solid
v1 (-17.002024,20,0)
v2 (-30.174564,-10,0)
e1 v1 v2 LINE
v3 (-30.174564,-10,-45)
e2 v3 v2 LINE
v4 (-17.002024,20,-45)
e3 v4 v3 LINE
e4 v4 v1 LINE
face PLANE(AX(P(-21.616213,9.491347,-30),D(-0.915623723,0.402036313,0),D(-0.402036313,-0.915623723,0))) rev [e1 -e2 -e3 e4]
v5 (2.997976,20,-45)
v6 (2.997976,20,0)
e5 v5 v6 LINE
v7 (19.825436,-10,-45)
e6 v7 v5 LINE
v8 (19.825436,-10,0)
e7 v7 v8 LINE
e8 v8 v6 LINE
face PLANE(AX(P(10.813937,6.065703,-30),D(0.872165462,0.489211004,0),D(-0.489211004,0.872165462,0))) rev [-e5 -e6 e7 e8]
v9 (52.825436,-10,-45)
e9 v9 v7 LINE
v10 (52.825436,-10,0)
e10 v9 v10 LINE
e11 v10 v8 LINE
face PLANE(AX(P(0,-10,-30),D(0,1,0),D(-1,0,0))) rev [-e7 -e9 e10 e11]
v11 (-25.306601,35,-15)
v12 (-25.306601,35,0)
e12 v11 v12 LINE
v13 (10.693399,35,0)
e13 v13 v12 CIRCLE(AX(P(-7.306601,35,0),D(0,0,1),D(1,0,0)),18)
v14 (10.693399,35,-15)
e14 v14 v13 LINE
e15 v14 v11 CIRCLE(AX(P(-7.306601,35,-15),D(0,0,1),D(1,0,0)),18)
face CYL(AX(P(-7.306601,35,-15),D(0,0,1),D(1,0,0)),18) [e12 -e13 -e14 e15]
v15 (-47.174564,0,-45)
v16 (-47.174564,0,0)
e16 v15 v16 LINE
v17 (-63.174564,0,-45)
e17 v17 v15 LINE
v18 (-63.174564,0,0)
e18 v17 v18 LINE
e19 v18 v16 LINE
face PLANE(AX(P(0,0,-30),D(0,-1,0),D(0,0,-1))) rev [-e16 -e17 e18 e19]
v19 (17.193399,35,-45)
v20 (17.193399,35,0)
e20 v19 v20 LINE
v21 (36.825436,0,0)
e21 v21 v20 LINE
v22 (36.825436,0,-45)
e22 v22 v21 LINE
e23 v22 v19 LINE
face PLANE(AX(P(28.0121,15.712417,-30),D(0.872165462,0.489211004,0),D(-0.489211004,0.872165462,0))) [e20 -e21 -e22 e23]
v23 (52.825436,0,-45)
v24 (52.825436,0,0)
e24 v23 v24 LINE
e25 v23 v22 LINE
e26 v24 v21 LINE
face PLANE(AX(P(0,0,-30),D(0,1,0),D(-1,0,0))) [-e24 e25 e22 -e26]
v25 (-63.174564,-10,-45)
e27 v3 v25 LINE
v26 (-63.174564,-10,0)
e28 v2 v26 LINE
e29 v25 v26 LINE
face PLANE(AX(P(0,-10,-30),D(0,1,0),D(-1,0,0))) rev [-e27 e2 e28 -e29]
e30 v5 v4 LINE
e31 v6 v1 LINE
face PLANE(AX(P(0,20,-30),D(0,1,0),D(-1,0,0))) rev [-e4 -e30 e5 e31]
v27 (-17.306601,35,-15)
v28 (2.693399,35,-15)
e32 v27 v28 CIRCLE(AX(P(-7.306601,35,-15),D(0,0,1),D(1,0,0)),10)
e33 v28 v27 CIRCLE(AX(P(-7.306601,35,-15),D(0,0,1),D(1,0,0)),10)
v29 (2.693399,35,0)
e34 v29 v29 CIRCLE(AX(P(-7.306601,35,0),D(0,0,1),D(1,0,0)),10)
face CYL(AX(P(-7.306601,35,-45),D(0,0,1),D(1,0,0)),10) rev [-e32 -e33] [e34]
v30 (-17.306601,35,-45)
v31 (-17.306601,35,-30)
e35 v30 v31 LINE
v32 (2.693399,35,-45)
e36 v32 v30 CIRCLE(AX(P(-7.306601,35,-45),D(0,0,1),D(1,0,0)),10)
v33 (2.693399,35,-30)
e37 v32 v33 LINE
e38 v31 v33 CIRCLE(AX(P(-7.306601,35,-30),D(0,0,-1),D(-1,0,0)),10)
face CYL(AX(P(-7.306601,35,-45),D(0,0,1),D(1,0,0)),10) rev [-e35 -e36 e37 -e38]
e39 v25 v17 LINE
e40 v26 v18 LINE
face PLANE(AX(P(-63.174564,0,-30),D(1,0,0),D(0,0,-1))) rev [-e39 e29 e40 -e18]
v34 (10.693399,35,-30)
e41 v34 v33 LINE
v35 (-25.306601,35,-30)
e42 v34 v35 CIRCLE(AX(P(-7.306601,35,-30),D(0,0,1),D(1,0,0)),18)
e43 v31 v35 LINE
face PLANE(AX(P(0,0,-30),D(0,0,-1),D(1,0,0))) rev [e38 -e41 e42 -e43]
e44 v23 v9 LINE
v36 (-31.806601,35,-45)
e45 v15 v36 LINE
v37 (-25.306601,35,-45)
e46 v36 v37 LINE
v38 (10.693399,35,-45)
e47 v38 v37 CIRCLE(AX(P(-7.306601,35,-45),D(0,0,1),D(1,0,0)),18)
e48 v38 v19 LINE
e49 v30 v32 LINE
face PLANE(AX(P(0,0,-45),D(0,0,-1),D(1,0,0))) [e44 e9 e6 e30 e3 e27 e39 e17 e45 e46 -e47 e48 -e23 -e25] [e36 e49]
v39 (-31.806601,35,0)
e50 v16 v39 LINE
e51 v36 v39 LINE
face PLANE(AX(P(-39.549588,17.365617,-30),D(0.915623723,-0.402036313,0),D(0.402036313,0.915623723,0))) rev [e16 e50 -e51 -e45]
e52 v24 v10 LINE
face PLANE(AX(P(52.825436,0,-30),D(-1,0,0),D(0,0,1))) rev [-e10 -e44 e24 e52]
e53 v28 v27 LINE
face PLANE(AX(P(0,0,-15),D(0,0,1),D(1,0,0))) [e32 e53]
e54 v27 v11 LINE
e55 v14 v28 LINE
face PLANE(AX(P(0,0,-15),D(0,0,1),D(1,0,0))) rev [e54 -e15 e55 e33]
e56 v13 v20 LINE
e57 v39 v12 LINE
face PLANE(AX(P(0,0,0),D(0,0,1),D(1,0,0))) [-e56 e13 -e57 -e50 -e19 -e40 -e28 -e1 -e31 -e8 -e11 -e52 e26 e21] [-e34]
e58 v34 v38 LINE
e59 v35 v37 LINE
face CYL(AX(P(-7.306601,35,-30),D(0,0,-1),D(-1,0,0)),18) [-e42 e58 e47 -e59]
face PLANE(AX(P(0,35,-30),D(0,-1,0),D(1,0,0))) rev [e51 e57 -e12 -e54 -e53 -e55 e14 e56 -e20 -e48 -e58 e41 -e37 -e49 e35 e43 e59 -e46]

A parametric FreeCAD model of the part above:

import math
import FreeCAD as App
import Part
import Sketcher
from FreeCAD import Vector
Q = App.Units.Quantity


def add_polygon(sketch, points):
    """Adds a closed chain of lines whose ends are joined by coincident constraints."""
    first, n = sketch.GeometryCount, len(points)
    for a, b in zip(points, points[1:] + points[:1]):
        sketch.addGeometry(Part.LineSegment(App.Vector(*a, 0), App.Vector(*b, 0)), False)
    for i in range(n):
        sketch.addConstraint(Sketcher.Constraint("Coincident", first + i, 2, first + (i + 1) % n, 1))

doc = App.newDocument("Part")
body = doc.addObject("PartDesign::Body", "Body")

# Sketch on XY plane
sketch1 = doc.addObject("Sketcher::SketchObject", "Sketch")
body.addObject(sketch1)
sketch1.AttachmentSupport = (doc.XY_Plane, [""])
sketch1.MapMode = "FlatFace"
add_polygon(sketch1, [(53, -10), (53, 0), (37, 0), (17, 35), (-32, 35), (-47, 0), (-63, 0), (-63, -10), (-30, -10), (-17, 20), (3, 20), (20, -10)])  # lines 0-11
sketch1.addConstraint([
    Sketcher.Constraint("Vertical", 0),
    Sketcher.Constraint("Horizontal", 1),
    Sketcher.Constraint("Horizontal", 3),
    Sketcher.Constraint("Horizontal", 5),
    Sketcher.Constraint("Vertical", 6),
    Sketcher.Constraint("Horizontal", 7),
    Sketcher.Constraint("Horizontal", 9),
    Sketcher.Constraint("Horizontal", 11),
    Sketcher.Constraint("PointOnObject", 0, 2, -1),
    Sketcher.Constraint("PointOnObject", 4, 2, -1),
    Sketcher.Constraint("Parallel", 4, 8),
    Sketcher.Constraint("Parallel", 2, 10),
    Sketcher.Constraint("Horizontal", 7, 2, 10, 2),
    Sketcher.Constraint("Equal", 1, 5),
    Sketcher.Constraint("Equal", 7, 11),
    Sketcher.Constraint("DistanceX", 1, 2, 1, 1, Q("16 mm")),
    Sketcher.Constraint("DistanceX", 3, 2, 3, 1, Q("49 mm")),
    Sketcher.Constraint("DistanceX", 7, 1, 7, 2, Q("33 mm")),
    Sketcher.Constraint("DistanceX", 9, 1, 9, 2, Q("20 mm")),
    Sketcher.Constraint("DistanceY", 0, 1, 0, 2, Q("10 mm")),
    Sketcher.Constraint("DistanceY", -1, 1, 2, 2, Q("35 mm")),
    Sketcher.Constraint("DistanceY", -1, 1, 8, 2, Q("20 mm")),
    Sketcher.Constraint("Distance", 2, Q("40.13 mm")),
    Sketcher.Constraint("DistanceX", -1, 1, 2, 2, Q("17.193399 mm")),
])
pad1 = doc.addObject("PartDesign::Pad", "Pad")
body.addObject(pad1)
pad1.Profile = sketch1
pad1.Length = 30
pad1.Reversed = True

# Sketch on XY plane
sketch2 = doc.addObject("Sketcher::SketchObject", "Sketch001")
body.addObject(sketch2)
sketch2.AttachmentSupport = (doc.XY_Plane, [""])
sketch2.MapMode = "FlatFace"
sketch2.addGeometry([
    Part.ArcOfCircle(Part.Circle(Vector(-7, 35, 0), Vector(0, 0, 1), 18), math.radians(0), math.radians(180)),
    Part.LineSegment(Vector(-25, 35, 0), Vector(11, 35, 0)),
], False)
sketch2.addConstraint([
    Sketcher.Constraint("Coincident", 0, 1, 1, 2),
    Sketcher.Constraint("Coincident", 1, 1, 0, 2),
    Sketcher.Constraint("Horizontal", 1),
    Sketcher.Constraint("Radius", 0, Q("18 mm")),
    Sketcher.Constraint("DistanceY", -1, 1, 0, 3, Q("35 mm")),
    Sketcher.Constraint("DistanceY", -1, 1, 0, 1, Q("35 mm")),
    Sketcher.Constraint("DistanceX", 0, 3, -1, 1, Q("7.306601 mm")),
])
pad2 = doc.addObject("PartDesign::Pad", "Pad001")
body.addObject(pad2)
pad2.Profile = sketch2
pad2.Length = 15
pad2.Reversed = True
doc.recompute()

datumplane = doc.addObject("PartDesign::Plane", "DatumPlane")
body.addObject(datumplane)
datumplane.AttachmentSupport = (doc.XY_Plane, [""])
datumplane.MapMode = "FlatFace"
datumplane.AttachmentOffset = App.Placement(Vector(0, 0, -22.5), App.Rotation())
mirrored = doc.addObject("PartDesign::Mirrored", "Mirrored")
body.addObject(mirrored)
mirrored.Originals = [pad1, pad2]
mirrored.MirrorPlane = (datumplane, [""])
body.Tip = mirrored

# Sketch on XY plane
sketch3 = doc.addObject("Sketcher::SketchObject", "Sketch002")
body.addObject(sketch3)
sketch3.AttachmentSupport = (doc.XY_Plane, [""])
sketch3.MapMode = "FlatFace"
sketch3.addGeometry([
    Part.ArcOfCircle(Part.Circle(Vector(-7, 35, 0), Vector(0, 0, 1), 10), math.radians(0), math.radians(180)),
    Part.LineSegment(Vector(-17, 35, 0), Vector(3, 35, 0)),
], False)
sketch3.addConstraint([
    Sketcher.Constraint("Coincident", 0, 1, 1, 2),
    Sketcher.Constraint("Coincident", 1, 1, 0, 2),
    Sketcher.Constraint("Horizontal", 1),
    Sketcher.Constraint("Radius", 0, Q("10 mm")),
    Sketcher.Constraint("DistanceY", -1, 1, 0, 3, Q("35 mm")),
    Sketcher.Constraint("DistanceY", -1, 1, 0, 1, Q("35 mm")),
    Sketcher.Constraint("DistanceX", 0, 3, -1, 1, Q("7.306601 mm")),
])
pocket1 = doc.addObject("PartDesign::Pocket", "Pocket")
body.addObject(pocket1)
pocket1.Profile = sketch3
pocket1.Type = "ThroughAll"

# Sketch on XY plane
sketch4 = doc.addObject("Sketcher::SketchObject", "Sketch003")
body.addObject(sketch4)
sketch4.AttachmentSupport = (doc.XY_Plane, [""])
sketch4.MapMode = "FlatFace"
sketch4.addGeometry(Part.Circle(Vector(-7, 35, 0), Vector(0, 0, 1), 10), False)
sketch4.addConstraint([
    Sketcher.Constraint("Diameter", 0, Q("20 mm")),
    Sketcher.Constraint("DistanceY", -1, 1, 0, 3, Q("35 mm")),
    Sketcher.Constraint("DistanceX", 0, 3, -1, 1, Q("7.306601 mm")),
])
pocket2 = doc.addObject("PartDesign::Pocket", "Pocket001")
body.addObject(pocket2)
pocket2.Profile = sketch4
pocket2.Length = 15

doc.recompute()
